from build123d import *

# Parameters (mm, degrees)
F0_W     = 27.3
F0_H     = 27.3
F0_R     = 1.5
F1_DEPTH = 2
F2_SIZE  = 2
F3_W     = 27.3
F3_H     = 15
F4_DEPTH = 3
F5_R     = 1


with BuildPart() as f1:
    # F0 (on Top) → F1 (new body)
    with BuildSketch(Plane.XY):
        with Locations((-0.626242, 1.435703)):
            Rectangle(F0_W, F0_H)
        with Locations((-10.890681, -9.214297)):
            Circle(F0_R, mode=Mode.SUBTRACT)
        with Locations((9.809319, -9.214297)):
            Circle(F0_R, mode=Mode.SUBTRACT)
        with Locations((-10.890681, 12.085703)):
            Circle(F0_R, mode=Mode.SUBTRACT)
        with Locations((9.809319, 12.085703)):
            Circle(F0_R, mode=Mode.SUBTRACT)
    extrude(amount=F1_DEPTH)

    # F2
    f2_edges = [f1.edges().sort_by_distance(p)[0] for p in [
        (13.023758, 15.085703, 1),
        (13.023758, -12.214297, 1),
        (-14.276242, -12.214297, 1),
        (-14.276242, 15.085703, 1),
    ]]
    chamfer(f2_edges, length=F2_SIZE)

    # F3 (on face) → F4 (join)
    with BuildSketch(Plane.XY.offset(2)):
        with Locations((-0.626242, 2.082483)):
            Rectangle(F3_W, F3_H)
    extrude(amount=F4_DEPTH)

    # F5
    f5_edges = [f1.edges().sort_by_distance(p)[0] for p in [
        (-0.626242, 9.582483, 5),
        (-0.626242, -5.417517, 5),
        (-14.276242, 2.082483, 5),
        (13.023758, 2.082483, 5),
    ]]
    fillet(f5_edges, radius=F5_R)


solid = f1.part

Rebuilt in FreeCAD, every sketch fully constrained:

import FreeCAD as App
import Part
import Sketcher


def edges_at(feature, points):
    """Names of the edges that pass closest to the given points."""
    edges = feature.Shape.Edges
    near = lambda p: min(range(len(edges)), key=lambda i: edges[i].distToShape(Part.Vertex(*p))[0])
    return sorted({f"Edge{near(p) + 1}" for p in points})


def add_polygon(sketch, points):
    """Adds a closed chain of lines whose ends are joined by coincident constraints."""
    first, n = sketch.GeometryCount, len(points)
    for a, b in zip(points, points[1:] + points[:1]):
        sketch.addGeometry(Part.LineSegment(App.Vector(*a, 0), App.Vector(*b, 0)), False)
    for i in range(n):
        sketch.addConstraint(Sketcher.Constraint("Coincident", first + i, 2, first + (i + 1) % n, 1))

doc = App.newDocument("Part")
body = doc.addObject("PartDesign::Body", "Body")

sketch1 = doc.addObject("Sketcher::SketchObject", "Sketch")
body.addObject(sketch1)
sketch1.AttachmentSupport = (doc.XY_Plane, [""])
sketch1.MapMode = "FlatFace"
add_polygon(sketch1, [(-14.3, 15.1), (-14.3, -12.2), (13, -12.2), (13, 15.1)])
sketch1.addGeometry(Part.Circle(App.Vector(-10.9, -9.2, 0), App.Vector(0, 0, 1), 1.5), False)
sketch1.addGeometry(Part.Circle(App.Vector(9.8, -9.2, 0), App.Vector(0, 0, 1), 1.5), False)
sketch1.addGeometry(Part.Circle(App.Vector(-10.9, 12.1, 0), App.Vector(0, 0, 1), 1.5), False)
sketch1.addGeometry(Part.Circle(App.Vector(9.8, 12.1, 0), App.Vector(0, 0, 1), 1.5), False)
sketch1.addConstraint([
    Sketcher.Constraint("Vertical", 0),
    Sketcher.Constraint("Horizontal", 1),
    Sketcher.Constraint("Vertical", 2),
    Sketcher.Constraint("Horizontal", 3),
    Sketcher.Constraint("Equal", 4, 5),
    Sketcher.Constraint("Equal", 5, 6),
    Sketcher.Constraint("Equal", 6, 7),
    Sketcher.Constraint("Horizontal", 4, 3, 5, 3),
    Sketcher.Constraint("Horizontal", 6, 3, 7, 3),
    Sketcher.Constraint("Vertical", 4, 3, 6, 3),
    Sketcher.Constraint("Vertical", 5, 3, 7, 3),
    Sketcher.Constraint("Equal", 3, 0),
    Sketcher.Constraint("Diameter", 4, 3.0),
    Sketcher.Constraint("DistanceX", 1, 1, 1, 2, 27.3),
    Sketcher.Constraint("DistanceY", 0, 2, 4, 3, 3.0),
    Sketcher.Constraint("DistanceY", 7, 3, 2, 2, 3.0),
    Sketcher.Constraint("DistanceX", 4, 3, 5, 3, 20.7),
    Sketcher.Constraint("DistanceX", 4, 3, -1, 1, 10.890681),
    Sketcher.Constraint("DistanceX", -1, 1, 1, 2, 13.023758),
    Sketcher.Constraint("DistanceY", 4, 3, -1, 1, 9.214297),
])
pad1 = doc.addObject("PartDesign::Pad", "Pad")
body.addObject(pad1)
pad1.Profile = sketch1
pad1.Length = 2
doc.recompute()

chamfer = doc.addObject("PartDesign::Chamfer", "Chamfer")
body.addObject(chamfer)
chamfer.Base = (pad1, edges_at(pad1, [
    (13.024, 15.086, 1),
    (13.024, -12.214, 1),
    (-14.276, -12.214, 1),
    (-14.276, 15.086, 1),
]))
chamfer.Size = 2

sketch2 = doc.addObject("Sketcher::SketchObject", "Sketch001")
body.addObject(sketch2)
sketch2.AttachmentSupport = (doc.XY_Plane, [""])
sketch2.MapMode = "FlatFace"
sketch2.AttachmentOffset = App.Placement(App.Vector(0, 0, 2), App.Rotation())
add_polygon(sketch2, [(-14, 10), (-14, -5), (13, -5), (13, 10)])
sketch2.addConstraint([
    Sketcher.Constraint("Vertical", 0),
    Sketcher.Constraint("Horizontal", 1),
    Sketcher.Constraint("Vertical", 2),
    Sketcher.Constraint("Horizontal", 3),
    Sketcher.Constraint("DistanceY", 0, 2, 0, 1, 15.0),
    Sketcher.Constraint("DistanceX", 1, 1, 1, 2, 27.3),
    Sketcher.Constraint("DistanceX", -1, 1, 1, 2, 13.023758),
    Sketcher.Constraint("DistanceY", 0, 2, -1, 1, 5.417517),
])
pad2 = doc.addObject("PartDesign::Pad", "Pad001")
body.addObject(pad2)
pad2.Profile = sketch2
pad2.Length = 3
doc.recompute()

fillet = doc.addObject("PartDesign::Fillet", "Fillet")
body.addObject(fillet)
fillet.Base = (pad2, edges_at(pad2, [
    (-0.626, 9.582, 5),
    (-0.626, -5.418, 5),
    (-14.276, 2.082, 5),
    (13.024, 2.082, 5),
]))
fillet.Radius = 1

doc.recompute()
